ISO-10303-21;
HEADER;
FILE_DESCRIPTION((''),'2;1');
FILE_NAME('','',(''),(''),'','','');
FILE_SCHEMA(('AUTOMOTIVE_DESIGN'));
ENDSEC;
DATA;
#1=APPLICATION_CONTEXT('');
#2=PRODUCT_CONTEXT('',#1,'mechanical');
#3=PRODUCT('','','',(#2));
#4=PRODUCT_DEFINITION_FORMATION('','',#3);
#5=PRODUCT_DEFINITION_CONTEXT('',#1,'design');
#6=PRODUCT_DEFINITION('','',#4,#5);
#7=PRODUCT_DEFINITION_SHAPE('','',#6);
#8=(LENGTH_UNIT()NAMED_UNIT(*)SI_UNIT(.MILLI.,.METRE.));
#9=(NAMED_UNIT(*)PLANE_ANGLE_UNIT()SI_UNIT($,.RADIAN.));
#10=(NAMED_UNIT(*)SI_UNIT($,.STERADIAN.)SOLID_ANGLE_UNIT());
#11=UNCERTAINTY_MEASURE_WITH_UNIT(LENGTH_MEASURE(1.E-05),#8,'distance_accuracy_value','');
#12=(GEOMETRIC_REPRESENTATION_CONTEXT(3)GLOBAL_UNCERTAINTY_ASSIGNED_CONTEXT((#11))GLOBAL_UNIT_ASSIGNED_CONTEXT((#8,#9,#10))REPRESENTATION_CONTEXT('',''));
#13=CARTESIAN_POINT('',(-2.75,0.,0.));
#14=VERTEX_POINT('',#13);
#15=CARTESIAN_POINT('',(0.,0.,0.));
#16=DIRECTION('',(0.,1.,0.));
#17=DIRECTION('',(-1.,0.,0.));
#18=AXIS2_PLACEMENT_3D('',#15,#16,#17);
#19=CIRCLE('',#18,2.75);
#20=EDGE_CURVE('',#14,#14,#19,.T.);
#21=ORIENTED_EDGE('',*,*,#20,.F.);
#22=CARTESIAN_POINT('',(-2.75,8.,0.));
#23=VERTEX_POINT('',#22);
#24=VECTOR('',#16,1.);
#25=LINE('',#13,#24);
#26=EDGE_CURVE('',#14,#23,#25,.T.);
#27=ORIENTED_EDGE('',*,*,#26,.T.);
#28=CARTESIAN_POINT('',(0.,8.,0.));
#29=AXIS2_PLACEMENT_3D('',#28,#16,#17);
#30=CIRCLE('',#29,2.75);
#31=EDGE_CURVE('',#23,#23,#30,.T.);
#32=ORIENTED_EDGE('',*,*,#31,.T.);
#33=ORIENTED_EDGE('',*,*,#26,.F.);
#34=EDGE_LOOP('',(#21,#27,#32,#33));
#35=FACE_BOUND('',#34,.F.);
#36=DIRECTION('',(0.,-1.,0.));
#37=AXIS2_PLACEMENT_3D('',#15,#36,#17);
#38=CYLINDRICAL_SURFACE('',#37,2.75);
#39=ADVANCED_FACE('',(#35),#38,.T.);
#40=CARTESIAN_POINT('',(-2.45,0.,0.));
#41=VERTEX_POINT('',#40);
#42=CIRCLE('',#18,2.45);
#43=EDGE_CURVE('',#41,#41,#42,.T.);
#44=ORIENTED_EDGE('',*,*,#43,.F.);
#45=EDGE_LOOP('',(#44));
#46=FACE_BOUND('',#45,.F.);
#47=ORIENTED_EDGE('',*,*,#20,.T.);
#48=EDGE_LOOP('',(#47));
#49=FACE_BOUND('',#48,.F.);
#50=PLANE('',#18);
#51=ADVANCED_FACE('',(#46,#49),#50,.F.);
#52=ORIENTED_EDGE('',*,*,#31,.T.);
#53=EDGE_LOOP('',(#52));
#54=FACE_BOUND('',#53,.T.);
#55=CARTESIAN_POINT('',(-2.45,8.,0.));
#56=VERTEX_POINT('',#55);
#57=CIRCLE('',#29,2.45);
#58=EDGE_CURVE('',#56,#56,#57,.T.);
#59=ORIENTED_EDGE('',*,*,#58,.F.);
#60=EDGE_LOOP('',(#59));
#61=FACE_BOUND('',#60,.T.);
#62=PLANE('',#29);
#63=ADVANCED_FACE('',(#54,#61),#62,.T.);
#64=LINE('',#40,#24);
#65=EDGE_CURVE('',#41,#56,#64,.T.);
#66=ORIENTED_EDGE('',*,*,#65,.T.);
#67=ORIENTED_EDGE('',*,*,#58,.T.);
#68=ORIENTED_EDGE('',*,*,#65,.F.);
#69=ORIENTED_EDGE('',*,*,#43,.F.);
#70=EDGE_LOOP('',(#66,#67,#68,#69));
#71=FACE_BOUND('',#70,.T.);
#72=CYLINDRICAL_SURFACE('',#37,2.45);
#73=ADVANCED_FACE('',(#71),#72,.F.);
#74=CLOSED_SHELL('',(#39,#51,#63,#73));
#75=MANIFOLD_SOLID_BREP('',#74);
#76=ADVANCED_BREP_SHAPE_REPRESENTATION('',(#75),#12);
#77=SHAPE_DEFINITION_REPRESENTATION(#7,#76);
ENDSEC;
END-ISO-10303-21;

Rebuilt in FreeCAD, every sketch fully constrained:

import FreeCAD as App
import Part
import Sketcher
from FreeCAD import Vector

doc = App.newDocument("Part")
body = doc.addObject("PartDesign::Body", "Body")

# Sketch on XZ plane
sketch1 = body.newObject("Sketcher::SketchObject", "Sketch")
sketch1.AttachmentSupport = (doc.getObject("XZ_Plane"), [""])
sketch1.MapMode = "FlatFace"
sketch1.addGeometry([
    Part.Circle(Vector(0, 0, 0), Vector(0, 0, 1), 2.8),
    Part.Circle(Vector(0, 0, 0), Vector(0, 0, 1), 2.5),
], False)
sketch1.addConstraint([
    Sketcher.Constraint("Coincident", 0, 3, -1, 1),
    Sketcher.Constraint("Coincident", 1, 3, -1, 1),
    Sketcher.Constraint("Diameter", 0, 5.5),
    Sketcher.Constraint("Diameter", 1, 4.9),
])
pad1 = body.newObject("PartDesign::Pad", "Pad")
pad1.Profile = sketch1
pad1.Length = 8
pad1.Reversed = True

doc.recompute()
